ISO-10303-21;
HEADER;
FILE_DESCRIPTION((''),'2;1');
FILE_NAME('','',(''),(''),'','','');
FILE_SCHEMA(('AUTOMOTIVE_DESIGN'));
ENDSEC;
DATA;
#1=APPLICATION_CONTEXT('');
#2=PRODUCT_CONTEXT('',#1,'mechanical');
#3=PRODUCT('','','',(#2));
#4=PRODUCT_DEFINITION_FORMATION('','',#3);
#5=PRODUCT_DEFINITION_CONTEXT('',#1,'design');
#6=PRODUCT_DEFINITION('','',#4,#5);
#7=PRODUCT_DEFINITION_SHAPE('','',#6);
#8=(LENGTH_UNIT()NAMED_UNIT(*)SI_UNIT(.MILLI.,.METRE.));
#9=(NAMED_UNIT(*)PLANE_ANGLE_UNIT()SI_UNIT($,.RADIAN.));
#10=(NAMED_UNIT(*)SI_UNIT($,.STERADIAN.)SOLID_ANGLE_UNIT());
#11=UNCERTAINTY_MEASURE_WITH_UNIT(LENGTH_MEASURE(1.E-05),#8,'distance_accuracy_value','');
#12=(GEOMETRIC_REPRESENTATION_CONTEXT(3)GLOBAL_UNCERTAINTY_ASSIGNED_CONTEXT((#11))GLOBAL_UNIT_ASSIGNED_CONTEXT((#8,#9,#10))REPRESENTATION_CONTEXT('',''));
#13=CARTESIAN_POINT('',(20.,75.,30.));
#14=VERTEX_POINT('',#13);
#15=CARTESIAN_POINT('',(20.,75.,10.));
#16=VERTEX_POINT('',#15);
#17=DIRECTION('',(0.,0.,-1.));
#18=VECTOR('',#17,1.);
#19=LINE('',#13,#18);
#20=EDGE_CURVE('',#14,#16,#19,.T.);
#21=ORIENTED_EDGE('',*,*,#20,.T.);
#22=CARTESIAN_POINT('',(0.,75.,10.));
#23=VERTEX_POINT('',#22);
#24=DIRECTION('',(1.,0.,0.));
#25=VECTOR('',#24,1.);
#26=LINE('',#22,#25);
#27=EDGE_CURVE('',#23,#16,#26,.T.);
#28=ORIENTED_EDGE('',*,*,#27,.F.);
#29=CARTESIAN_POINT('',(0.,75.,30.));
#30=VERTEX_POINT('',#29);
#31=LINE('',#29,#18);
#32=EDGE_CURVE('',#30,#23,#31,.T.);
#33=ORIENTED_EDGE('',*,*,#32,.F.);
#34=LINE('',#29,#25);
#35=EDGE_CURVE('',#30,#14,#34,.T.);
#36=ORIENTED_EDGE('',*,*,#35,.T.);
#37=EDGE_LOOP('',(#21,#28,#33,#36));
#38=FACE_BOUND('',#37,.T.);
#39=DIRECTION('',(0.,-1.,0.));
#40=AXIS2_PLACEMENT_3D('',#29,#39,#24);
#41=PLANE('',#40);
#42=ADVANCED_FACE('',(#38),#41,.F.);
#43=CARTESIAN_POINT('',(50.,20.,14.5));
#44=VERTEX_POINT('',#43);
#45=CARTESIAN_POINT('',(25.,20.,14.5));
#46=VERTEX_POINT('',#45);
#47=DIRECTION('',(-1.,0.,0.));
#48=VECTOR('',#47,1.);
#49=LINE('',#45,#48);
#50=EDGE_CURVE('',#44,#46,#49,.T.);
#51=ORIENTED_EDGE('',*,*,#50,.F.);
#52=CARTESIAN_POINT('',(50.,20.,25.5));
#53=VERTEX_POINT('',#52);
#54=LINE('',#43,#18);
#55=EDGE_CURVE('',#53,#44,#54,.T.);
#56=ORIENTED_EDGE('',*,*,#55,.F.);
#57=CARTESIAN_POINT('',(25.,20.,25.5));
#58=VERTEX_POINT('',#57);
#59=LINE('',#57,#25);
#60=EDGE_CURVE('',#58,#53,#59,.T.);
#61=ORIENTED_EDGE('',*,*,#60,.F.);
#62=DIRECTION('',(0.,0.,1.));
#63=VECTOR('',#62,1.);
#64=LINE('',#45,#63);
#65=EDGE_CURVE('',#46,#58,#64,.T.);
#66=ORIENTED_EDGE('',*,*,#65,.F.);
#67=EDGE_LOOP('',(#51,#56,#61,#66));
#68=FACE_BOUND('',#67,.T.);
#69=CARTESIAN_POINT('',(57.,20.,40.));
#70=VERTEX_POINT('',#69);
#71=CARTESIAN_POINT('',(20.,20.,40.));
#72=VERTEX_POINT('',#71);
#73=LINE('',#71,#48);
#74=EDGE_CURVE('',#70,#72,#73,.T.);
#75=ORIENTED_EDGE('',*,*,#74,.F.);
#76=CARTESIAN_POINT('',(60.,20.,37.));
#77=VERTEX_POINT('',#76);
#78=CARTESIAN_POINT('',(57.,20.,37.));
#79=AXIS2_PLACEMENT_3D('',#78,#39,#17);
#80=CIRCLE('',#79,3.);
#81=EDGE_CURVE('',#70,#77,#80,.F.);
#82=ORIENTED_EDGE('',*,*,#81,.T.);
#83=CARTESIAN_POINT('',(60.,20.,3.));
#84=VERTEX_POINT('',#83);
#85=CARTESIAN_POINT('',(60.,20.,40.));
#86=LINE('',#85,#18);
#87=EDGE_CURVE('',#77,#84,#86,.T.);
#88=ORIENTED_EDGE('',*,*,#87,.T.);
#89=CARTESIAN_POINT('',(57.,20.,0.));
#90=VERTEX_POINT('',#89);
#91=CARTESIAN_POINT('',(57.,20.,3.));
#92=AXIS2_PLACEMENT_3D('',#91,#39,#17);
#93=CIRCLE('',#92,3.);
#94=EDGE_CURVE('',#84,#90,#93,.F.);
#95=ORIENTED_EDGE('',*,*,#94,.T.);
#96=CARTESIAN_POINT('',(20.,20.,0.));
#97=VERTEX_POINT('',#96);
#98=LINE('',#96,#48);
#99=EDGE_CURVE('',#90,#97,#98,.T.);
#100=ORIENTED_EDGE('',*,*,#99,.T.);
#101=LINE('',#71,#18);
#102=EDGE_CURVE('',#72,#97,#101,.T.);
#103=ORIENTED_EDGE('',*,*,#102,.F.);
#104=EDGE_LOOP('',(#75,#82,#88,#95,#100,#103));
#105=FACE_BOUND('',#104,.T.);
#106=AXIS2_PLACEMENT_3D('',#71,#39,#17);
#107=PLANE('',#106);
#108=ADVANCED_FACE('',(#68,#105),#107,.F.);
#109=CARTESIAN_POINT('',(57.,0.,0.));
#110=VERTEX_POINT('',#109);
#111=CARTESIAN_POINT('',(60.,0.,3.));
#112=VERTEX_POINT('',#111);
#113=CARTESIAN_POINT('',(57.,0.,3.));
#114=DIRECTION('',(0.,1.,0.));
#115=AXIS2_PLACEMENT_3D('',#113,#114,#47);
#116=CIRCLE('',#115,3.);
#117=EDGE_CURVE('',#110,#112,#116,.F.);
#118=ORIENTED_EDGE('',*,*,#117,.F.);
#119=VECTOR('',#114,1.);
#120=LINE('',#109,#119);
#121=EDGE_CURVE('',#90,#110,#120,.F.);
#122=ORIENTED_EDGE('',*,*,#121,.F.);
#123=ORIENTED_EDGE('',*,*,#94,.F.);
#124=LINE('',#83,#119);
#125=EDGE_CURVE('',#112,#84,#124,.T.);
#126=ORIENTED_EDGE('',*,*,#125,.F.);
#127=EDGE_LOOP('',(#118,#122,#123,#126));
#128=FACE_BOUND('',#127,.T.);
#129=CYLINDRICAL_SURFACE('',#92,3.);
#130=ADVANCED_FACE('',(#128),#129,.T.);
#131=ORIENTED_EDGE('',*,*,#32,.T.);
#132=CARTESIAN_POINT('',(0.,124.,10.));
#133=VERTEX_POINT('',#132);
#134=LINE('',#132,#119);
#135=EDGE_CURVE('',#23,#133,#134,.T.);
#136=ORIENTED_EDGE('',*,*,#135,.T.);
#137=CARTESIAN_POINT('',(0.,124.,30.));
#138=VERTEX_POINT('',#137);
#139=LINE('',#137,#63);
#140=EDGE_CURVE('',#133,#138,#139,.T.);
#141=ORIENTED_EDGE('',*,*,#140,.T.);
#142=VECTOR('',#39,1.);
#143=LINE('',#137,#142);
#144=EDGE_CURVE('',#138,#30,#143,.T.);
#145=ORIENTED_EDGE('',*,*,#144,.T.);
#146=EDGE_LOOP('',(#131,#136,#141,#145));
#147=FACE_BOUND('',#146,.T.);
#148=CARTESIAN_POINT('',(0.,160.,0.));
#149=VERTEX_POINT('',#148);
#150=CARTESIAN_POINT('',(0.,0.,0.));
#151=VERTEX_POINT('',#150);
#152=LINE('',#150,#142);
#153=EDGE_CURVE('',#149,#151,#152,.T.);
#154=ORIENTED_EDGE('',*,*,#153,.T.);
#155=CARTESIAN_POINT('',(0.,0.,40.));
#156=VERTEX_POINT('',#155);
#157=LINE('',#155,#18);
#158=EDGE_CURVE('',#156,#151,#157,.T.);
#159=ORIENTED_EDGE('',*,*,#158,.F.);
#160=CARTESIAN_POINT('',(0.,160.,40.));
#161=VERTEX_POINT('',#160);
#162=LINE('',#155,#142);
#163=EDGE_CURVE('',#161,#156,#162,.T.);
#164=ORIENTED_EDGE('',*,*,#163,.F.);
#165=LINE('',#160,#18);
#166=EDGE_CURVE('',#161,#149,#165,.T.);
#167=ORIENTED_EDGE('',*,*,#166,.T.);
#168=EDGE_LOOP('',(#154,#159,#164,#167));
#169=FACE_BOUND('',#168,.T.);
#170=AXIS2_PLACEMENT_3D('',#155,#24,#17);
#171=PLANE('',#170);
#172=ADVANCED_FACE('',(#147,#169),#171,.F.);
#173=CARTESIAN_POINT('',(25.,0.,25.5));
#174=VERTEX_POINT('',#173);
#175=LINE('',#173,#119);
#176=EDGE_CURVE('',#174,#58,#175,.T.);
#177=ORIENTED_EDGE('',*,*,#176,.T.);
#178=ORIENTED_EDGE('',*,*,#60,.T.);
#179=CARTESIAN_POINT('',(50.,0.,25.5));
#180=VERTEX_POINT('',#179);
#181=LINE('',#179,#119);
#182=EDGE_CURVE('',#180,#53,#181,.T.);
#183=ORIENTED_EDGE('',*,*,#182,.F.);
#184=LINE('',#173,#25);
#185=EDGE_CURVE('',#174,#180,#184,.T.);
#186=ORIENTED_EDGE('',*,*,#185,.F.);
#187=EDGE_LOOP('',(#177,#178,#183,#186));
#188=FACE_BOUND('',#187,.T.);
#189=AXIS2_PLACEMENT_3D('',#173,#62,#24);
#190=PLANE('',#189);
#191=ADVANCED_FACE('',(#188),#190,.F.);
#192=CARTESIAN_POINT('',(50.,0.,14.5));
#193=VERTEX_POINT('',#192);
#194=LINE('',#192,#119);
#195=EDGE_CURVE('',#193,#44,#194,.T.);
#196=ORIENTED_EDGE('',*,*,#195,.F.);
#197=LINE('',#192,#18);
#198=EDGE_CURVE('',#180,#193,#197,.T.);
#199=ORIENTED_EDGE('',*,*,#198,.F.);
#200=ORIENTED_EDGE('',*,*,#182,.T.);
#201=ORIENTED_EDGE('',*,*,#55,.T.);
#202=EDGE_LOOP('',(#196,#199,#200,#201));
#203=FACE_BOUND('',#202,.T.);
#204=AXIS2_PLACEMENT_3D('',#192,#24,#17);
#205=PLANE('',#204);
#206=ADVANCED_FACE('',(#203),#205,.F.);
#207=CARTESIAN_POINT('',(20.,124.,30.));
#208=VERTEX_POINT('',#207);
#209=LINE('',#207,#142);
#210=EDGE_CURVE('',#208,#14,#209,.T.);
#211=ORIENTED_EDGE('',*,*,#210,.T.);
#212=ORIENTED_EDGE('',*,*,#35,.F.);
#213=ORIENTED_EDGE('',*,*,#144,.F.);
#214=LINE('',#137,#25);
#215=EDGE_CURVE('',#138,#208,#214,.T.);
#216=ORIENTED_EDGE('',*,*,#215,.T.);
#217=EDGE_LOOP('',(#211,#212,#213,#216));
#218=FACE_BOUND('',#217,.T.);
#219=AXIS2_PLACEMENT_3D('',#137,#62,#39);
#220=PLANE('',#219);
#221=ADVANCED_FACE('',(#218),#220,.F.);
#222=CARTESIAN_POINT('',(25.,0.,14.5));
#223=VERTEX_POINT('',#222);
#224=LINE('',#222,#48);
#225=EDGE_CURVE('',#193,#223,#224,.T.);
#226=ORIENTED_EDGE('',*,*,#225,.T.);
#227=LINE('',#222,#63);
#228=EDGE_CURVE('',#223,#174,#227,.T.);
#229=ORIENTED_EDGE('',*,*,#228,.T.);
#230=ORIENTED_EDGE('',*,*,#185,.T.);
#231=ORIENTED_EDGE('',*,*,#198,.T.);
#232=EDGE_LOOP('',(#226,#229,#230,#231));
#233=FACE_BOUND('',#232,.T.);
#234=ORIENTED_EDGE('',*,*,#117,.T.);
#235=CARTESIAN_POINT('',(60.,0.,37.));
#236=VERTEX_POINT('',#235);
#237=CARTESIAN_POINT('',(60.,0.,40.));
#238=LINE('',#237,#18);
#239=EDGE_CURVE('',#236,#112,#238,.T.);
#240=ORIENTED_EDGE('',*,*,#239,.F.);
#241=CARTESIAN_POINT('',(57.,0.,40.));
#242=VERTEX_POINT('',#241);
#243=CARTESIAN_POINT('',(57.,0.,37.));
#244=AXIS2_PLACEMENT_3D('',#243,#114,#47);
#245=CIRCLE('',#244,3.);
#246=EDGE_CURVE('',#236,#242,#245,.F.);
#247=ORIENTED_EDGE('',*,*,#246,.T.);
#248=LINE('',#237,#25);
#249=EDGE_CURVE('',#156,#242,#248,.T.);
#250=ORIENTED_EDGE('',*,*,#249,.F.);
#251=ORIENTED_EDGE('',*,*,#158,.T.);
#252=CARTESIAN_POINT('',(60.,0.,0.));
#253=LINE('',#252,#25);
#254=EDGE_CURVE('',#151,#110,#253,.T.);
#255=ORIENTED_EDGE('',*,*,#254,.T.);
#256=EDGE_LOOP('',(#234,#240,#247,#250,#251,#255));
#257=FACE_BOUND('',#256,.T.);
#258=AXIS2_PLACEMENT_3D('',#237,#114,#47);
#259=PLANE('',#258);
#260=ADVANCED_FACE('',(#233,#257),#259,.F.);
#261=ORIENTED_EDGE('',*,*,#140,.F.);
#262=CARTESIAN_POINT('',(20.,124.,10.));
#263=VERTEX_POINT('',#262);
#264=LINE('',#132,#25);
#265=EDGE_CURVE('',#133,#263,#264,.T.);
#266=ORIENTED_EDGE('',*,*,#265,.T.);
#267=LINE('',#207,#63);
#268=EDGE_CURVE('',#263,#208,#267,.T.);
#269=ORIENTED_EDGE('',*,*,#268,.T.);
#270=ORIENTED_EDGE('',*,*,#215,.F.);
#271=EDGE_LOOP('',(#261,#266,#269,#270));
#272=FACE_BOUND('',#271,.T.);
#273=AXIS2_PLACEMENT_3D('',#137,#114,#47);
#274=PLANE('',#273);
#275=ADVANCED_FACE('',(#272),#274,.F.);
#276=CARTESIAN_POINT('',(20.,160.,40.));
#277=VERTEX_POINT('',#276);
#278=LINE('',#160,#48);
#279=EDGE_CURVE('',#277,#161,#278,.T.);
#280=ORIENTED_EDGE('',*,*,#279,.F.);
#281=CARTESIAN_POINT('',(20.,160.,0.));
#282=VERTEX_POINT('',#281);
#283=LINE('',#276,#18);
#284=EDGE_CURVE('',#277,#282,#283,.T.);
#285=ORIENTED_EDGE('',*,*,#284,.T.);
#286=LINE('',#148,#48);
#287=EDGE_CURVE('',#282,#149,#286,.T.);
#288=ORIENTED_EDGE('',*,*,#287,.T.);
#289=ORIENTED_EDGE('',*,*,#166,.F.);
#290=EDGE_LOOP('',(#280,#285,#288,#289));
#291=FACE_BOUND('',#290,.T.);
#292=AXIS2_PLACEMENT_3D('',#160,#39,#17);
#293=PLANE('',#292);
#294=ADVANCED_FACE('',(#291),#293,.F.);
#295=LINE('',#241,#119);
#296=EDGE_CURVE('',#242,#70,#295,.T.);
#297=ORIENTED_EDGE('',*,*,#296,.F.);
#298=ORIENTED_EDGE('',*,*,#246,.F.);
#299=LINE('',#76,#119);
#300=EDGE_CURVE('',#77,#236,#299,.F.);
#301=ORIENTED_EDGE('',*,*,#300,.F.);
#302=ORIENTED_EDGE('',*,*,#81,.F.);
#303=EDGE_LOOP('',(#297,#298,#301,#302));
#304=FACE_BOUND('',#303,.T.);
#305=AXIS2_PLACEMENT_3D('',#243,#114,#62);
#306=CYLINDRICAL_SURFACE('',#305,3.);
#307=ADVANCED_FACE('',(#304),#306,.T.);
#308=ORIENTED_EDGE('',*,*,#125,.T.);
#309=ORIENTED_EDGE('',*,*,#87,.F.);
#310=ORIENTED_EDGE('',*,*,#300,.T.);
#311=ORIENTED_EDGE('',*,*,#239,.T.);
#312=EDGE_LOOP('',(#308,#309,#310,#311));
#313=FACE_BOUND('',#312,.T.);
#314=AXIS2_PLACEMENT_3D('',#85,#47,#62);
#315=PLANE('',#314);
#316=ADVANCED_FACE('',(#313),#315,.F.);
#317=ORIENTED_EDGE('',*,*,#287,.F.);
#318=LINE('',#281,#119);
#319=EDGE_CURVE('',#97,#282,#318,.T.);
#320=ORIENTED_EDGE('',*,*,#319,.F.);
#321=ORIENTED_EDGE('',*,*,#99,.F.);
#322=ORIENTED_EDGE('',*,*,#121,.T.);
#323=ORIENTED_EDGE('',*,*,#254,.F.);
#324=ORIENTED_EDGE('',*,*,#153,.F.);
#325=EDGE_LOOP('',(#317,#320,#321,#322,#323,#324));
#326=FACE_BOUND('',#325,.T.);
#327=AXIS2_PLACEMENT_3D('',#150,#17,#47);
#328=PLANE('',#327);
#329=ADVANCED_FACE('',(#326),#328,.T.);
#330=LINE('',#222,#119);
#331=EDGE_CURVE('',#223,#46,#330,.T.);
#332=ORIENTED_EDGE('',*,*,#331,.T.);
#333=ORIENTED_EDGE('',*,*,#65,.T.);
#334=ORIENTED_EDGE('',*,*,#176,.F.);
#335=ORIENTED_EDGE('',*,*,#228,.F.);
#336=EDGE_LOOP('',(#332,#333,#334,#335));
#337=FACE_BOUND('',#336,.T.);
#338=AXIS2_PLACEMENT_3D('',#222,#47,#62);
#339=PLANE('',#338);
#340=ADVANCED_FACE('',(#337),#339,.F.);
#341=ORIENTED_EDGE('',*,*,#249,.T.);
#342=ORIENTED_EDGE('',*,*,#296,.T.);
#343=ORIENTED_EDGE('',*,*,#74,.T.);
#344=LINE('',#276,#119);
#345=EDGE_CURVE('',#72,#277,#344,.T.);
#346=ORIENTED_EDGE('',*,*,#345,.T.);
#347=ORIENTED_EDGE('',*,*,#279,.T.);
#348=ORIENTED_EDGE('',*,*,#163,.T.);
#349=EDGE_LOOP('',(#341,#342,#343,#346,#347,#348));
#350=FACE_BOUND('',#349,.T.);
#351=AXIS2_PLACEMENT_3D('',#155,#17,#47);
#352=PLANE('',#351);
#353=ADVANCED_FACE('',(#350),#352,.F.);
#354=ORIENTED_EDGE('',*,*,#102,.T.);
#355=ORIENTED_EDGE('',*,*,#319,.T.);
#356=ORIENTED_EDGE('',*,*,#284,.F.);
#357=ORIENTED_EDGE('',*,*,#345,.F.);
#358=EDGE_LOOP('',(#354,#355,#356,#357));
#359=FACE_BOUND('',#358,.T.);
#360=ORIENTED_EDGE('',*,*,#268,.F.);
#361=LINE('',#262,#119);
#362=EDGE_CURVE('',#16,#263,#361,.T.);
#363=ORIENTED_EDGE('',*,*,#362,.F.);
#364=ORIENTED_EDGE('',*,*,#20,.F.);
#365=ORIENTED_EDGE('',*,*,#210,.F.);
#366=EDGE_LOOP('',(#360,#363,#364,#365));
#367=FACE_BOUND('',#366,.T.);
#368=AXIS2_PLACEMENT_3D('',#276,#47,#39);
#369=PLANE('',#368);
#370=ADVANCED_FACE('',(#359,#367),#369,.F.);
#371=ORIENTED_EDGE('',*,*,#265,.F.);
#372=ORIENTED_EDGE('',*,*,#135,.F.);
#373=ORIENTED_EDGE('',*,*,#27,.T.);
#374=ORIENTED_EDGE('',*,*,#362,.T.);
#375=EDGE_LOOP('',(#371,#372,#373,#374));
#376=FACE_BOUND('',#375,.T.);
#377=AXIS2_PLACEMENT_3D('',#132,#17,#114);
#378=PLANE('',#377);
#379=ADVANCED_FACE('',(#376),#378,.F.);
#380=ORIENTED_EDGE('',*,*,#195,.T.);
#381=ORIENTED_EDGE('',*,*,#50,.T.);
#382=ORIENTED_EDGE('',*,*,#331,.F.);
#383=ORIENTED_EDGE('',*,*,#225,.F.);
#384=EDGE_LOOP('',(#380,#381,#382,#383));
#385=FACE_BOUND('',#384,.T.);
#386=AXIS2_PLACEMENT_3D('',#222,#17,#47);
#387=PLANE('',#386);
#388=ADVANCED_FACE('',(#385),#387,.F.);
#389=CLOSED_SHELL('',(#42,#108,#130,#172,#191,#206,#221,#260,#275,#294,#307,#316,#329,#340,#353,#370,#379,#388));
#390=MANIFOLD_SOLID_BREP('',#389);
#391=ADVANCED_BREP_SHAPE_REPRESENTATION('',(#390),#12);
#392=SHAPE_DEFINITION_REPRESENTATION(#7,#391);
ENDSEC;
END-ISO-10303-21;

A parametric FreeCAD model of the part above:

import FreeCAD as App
import Part
import Sketcher
Q = App.Units.Quantity


def edges_at(feature, points):
    """Names of the edges that pass closest to the given points."""
    edges = feature.Shape.Edges
    near = lambda p: min(range(len(edges)), key=lambda i: edges[i].distToShape(Part.Vertex(*p))[0])
    return sorted({f"Edge{near(p) + 1}" for p in points})

doc = App.newDocument("Part")
params = doc.addObject("Spreadsheet::Sheet", "Params")
for row, (alias, value) in enumerate([
    ("sketch1_width", "60 mm"),
    ("sketch1_width2", "40 mm"),
    ("sketch1_height", "160 mm"),
    ("pad1_length", "40 mm"),
    ("fillet_radius", "3 mm"),
    ("sketch2_width", "25 mm"),
    ("sketch2_height", "11 mm"),
    ("sketch3_width", "49 mm"),
    ("sketch3_height", "20 mm"),
], start=1):
    params.set(f"A{row}", alias)
    params.set(f"B{row}", "=" + value)
    params.setAlias(f"B{row}", alias)

body = doc.addObject("PartDesign::Body", "Body")

sketch1 = doc.addObject("Sketcher::SketchObject", "Sketch")
body.addObject(sketch1)
sketch1.AttachmentSupport = (doc.XY_Plane, [""])
sketch1.MapMode = "FlatFace"
sketch1.addGeometry([
    Part.LineSegment(App.Vector(0, 160, 0), App.Vector(0, 0, 0)),
    Part.LineSegment(App.Vector(0, 0, 0), App.Vector(60, 0, 0)),
    Part.LineSegment(App.Vector(60, 0, 0), App.Vector(60, 20, 0)),
    Part.LineSegment(App.Vector(60, 20, 0), App.Vector(20, 20, 0)),
    Part.LineSegment(App.Vector(20, 20, 0), App.Vector(20, 160, 0)),
    Part.LineSegment(App.Vector(20, 160, 0), App.Vector(0, 160, 0)),
], False)
sketch1.addConstraint([
    Sketcher.Constraint("Coincident", 0, 2, 1, 1),
    Sketcher.Constraint("Coincident", 1, 2, 2, 1),
    Sketcher.Constraint("Coincident", 2, 2, 3, 1),
    Sketcher.Constraint("Coincident", 3, 2, 4, 1),
    Sketcher.Constraint("Coincident", 4, 2, 5, 1),
    Sketcher.Constraint("Coincident", 5, 2, 0, 1),
    Sketcher.Constraint("Vertical", 0),
    Sketcher.Constraint("Horizontal", 1),
    Sketcher.Constraint("Vertical", 2),
    Sketcher.Constraint("Horizontal", 3),
    Sketcher.Constraint("Vertical", 4),
    Sketcher.Constraint("Horizontal", 5),
    Sketcher.Constraint("Coincident", 0, 2, -1, 1),
    Sketcher.Constraint("Equal", 5, 2),
    Sketcher.Constraint("DistanceX", 1, 1, 1, 2, Q("60 mm")),
    Sketcher.Constraint("DistanceX", 3, 2, 3, 1, Q("40 mm")),
    Sketcher.Constraint("DistanceY", 0, 2, 0, 1, Q("160 mm")),
])
sketch1.setExpression("Constraints[14]", "Params.sketch1_width")
sketch1.setExpression("Constraints[15]", "Params.sketch1_width2")
sketch1.setExpression("Constraints[16]", "Params.sketch1_height")
pad1 = doc.addObject("PartDesign::Pad", "Pad")
body.addObject(pad1)
pad1.Profile = sketch1
pad1.setExpression("Length", "Params.pad1_length")
doc.recompute()

fillet = doc.addObject("PartDesign::Fillet", "Fillet")
body.addObject(fillet)
fillet.Base = (pad1, edges_at(pad1, [(60, 10, 40), (60, 10, 0)]))
fillet.setExpression("Radius", "Params.fillet_radius")

sketch2 = doc.addObject("Sketcher::SketchObject", "Sketch001")
body.addObject(sketch2)
sketch2.AttachmentSupport = (doc.XZ_Plane, [""])
sketch2.MapMode = "FlatFace"
sketch2.AttachmentOffset = App.Placement(App.Vector(0, 0, -20), App.Rotation())
sketch2.addGeometry([
    Part.LineSegment(App.Vector(25, 14, 0), App.Vector(25, 26, 0)),
    Part.LineSegment(App.Vector(25, 26, 0), App.Vector(50, 26, 0)),
    Part.LineSegment(App.Vector(50, 26, 0), App.Vector(50, 14, 0)),
    Part.LineSegment(App.Vector(50, 14, 0), App.Vector(25, 14, 0)),
], False)
sketch2.addConstraint([
    Sketcher.Constraint("Coincident", 0, 2, 1, 1),
    Sketcher.Constraint("Coincident", 1, 2, 2, 1),
    Sketcher.Constraint("Coincident", 2, 2, 3, 1),
    Sketcher.Constraint("Coincident", 3, 2, 0, 1),
    Sketcher.Constraint("Vertical", 0),
    Sketcher.Constraint("Horizontal", 1),
    Sketcher.Constraint("Vertical", 2),
    Sketcher.Constraint("Horizontal", 3),
    Sketcher.Constraint("DistanceX", 1, 1, 1, 2, Q("25 mm")),
    Sketcher.Constraint("DistanceY", 0, 1, 0, 2, Q("11 mm")),
    Sketcher.Constraint("DistanceX", -1, 1, 0, 2, Q("25 mm")),
    Sketcher.Constraint("DistanceY", -1, 1, 0, 2, Q("25.5 mm")),
])
sketch2.setExpression("Constraints[8]", "Params.sketch2_width")
sketch2.setExpression("Constraints[9]", "Params.sketch2_height")
pocket1 = doc.addObject("PartDesign::Pocket", "Pocket")
body.addObject(pocket1)
pocket1.Profile = sketch2
pocket1.Type = "ThroughAll"
pocket1.Reversed = True

sketch3 = doc.addObject("Sketcher::SketchObject", "Sketch002")
body.addObject(sketch3)
sketch3.AttachmentSupport = (doc.YZ_Plane, [""])
sketch3.MapMode = "FlatFace"
sketch3.AttachmentOffset = App.Placement(App.Vector(0, 0, 20), App.Rotation())
sketch3.addGeometry([
    Part.LineSegment(App.Vector(124, 30, 0), App.Vector(75, 30, 0)),
    Part.LineSegment(App.Vector(75, 30, 0), App.Vector(75, 10, 0)),
    Part.LineSegment(App.Vector(75, 10, 0), App.Vector(124, 10, 0)),
    Part.LineSegment(App.Vector(124, 10, 0), App.Vector(124, 30, 0)),
], False)
sketch3.addConstraint([
    Sketcher.Constraint("Coincident", 0, 2, 1, 1),
    Sketcher.Constraint("Coincident", 1, 2, 2, 1),
    Sketcher.Constraint("Coincident", 2, 2, 3, 1),
    Sketcher.Constraint("Coincident", 3, 2, 0, 1),
    Sketcher.Constraint("Horizontal", 0),
    Sketcher.Constraint("Vertical", 1),
    Sketcher.Constraint("Horizontal", 2),
    Sketcher.Constraint("Vertical", 3),
    Sketcher.Constraint("DistanceX", 0, 2, 0, 1, Q("49 mm")),
    Sketcher.Constraint("DistanceY", 1, 2, 1, 1, Q("20 mm")),
    Sketcher.Constraint("DistanceX", -1, 1, 0, 2, Q("75 mm")),
    Sketcher.Constraint("DistanceY", -1, 1, 0, 2, Q("30 mm")),
])
sketch3.setExpression("Constraints[8]", "Params.sketch3_width")
sketch3.setExpression("Constraints[9]", "Params.sketch3_height")
pocket2 = doc.addObject("PartDesign::Pocket", "Pocket001")
body.addObject(pocket2)
pocket2.Profile = sketch3
pocket2.Type = "ThroughAll"

doc.recompute()
